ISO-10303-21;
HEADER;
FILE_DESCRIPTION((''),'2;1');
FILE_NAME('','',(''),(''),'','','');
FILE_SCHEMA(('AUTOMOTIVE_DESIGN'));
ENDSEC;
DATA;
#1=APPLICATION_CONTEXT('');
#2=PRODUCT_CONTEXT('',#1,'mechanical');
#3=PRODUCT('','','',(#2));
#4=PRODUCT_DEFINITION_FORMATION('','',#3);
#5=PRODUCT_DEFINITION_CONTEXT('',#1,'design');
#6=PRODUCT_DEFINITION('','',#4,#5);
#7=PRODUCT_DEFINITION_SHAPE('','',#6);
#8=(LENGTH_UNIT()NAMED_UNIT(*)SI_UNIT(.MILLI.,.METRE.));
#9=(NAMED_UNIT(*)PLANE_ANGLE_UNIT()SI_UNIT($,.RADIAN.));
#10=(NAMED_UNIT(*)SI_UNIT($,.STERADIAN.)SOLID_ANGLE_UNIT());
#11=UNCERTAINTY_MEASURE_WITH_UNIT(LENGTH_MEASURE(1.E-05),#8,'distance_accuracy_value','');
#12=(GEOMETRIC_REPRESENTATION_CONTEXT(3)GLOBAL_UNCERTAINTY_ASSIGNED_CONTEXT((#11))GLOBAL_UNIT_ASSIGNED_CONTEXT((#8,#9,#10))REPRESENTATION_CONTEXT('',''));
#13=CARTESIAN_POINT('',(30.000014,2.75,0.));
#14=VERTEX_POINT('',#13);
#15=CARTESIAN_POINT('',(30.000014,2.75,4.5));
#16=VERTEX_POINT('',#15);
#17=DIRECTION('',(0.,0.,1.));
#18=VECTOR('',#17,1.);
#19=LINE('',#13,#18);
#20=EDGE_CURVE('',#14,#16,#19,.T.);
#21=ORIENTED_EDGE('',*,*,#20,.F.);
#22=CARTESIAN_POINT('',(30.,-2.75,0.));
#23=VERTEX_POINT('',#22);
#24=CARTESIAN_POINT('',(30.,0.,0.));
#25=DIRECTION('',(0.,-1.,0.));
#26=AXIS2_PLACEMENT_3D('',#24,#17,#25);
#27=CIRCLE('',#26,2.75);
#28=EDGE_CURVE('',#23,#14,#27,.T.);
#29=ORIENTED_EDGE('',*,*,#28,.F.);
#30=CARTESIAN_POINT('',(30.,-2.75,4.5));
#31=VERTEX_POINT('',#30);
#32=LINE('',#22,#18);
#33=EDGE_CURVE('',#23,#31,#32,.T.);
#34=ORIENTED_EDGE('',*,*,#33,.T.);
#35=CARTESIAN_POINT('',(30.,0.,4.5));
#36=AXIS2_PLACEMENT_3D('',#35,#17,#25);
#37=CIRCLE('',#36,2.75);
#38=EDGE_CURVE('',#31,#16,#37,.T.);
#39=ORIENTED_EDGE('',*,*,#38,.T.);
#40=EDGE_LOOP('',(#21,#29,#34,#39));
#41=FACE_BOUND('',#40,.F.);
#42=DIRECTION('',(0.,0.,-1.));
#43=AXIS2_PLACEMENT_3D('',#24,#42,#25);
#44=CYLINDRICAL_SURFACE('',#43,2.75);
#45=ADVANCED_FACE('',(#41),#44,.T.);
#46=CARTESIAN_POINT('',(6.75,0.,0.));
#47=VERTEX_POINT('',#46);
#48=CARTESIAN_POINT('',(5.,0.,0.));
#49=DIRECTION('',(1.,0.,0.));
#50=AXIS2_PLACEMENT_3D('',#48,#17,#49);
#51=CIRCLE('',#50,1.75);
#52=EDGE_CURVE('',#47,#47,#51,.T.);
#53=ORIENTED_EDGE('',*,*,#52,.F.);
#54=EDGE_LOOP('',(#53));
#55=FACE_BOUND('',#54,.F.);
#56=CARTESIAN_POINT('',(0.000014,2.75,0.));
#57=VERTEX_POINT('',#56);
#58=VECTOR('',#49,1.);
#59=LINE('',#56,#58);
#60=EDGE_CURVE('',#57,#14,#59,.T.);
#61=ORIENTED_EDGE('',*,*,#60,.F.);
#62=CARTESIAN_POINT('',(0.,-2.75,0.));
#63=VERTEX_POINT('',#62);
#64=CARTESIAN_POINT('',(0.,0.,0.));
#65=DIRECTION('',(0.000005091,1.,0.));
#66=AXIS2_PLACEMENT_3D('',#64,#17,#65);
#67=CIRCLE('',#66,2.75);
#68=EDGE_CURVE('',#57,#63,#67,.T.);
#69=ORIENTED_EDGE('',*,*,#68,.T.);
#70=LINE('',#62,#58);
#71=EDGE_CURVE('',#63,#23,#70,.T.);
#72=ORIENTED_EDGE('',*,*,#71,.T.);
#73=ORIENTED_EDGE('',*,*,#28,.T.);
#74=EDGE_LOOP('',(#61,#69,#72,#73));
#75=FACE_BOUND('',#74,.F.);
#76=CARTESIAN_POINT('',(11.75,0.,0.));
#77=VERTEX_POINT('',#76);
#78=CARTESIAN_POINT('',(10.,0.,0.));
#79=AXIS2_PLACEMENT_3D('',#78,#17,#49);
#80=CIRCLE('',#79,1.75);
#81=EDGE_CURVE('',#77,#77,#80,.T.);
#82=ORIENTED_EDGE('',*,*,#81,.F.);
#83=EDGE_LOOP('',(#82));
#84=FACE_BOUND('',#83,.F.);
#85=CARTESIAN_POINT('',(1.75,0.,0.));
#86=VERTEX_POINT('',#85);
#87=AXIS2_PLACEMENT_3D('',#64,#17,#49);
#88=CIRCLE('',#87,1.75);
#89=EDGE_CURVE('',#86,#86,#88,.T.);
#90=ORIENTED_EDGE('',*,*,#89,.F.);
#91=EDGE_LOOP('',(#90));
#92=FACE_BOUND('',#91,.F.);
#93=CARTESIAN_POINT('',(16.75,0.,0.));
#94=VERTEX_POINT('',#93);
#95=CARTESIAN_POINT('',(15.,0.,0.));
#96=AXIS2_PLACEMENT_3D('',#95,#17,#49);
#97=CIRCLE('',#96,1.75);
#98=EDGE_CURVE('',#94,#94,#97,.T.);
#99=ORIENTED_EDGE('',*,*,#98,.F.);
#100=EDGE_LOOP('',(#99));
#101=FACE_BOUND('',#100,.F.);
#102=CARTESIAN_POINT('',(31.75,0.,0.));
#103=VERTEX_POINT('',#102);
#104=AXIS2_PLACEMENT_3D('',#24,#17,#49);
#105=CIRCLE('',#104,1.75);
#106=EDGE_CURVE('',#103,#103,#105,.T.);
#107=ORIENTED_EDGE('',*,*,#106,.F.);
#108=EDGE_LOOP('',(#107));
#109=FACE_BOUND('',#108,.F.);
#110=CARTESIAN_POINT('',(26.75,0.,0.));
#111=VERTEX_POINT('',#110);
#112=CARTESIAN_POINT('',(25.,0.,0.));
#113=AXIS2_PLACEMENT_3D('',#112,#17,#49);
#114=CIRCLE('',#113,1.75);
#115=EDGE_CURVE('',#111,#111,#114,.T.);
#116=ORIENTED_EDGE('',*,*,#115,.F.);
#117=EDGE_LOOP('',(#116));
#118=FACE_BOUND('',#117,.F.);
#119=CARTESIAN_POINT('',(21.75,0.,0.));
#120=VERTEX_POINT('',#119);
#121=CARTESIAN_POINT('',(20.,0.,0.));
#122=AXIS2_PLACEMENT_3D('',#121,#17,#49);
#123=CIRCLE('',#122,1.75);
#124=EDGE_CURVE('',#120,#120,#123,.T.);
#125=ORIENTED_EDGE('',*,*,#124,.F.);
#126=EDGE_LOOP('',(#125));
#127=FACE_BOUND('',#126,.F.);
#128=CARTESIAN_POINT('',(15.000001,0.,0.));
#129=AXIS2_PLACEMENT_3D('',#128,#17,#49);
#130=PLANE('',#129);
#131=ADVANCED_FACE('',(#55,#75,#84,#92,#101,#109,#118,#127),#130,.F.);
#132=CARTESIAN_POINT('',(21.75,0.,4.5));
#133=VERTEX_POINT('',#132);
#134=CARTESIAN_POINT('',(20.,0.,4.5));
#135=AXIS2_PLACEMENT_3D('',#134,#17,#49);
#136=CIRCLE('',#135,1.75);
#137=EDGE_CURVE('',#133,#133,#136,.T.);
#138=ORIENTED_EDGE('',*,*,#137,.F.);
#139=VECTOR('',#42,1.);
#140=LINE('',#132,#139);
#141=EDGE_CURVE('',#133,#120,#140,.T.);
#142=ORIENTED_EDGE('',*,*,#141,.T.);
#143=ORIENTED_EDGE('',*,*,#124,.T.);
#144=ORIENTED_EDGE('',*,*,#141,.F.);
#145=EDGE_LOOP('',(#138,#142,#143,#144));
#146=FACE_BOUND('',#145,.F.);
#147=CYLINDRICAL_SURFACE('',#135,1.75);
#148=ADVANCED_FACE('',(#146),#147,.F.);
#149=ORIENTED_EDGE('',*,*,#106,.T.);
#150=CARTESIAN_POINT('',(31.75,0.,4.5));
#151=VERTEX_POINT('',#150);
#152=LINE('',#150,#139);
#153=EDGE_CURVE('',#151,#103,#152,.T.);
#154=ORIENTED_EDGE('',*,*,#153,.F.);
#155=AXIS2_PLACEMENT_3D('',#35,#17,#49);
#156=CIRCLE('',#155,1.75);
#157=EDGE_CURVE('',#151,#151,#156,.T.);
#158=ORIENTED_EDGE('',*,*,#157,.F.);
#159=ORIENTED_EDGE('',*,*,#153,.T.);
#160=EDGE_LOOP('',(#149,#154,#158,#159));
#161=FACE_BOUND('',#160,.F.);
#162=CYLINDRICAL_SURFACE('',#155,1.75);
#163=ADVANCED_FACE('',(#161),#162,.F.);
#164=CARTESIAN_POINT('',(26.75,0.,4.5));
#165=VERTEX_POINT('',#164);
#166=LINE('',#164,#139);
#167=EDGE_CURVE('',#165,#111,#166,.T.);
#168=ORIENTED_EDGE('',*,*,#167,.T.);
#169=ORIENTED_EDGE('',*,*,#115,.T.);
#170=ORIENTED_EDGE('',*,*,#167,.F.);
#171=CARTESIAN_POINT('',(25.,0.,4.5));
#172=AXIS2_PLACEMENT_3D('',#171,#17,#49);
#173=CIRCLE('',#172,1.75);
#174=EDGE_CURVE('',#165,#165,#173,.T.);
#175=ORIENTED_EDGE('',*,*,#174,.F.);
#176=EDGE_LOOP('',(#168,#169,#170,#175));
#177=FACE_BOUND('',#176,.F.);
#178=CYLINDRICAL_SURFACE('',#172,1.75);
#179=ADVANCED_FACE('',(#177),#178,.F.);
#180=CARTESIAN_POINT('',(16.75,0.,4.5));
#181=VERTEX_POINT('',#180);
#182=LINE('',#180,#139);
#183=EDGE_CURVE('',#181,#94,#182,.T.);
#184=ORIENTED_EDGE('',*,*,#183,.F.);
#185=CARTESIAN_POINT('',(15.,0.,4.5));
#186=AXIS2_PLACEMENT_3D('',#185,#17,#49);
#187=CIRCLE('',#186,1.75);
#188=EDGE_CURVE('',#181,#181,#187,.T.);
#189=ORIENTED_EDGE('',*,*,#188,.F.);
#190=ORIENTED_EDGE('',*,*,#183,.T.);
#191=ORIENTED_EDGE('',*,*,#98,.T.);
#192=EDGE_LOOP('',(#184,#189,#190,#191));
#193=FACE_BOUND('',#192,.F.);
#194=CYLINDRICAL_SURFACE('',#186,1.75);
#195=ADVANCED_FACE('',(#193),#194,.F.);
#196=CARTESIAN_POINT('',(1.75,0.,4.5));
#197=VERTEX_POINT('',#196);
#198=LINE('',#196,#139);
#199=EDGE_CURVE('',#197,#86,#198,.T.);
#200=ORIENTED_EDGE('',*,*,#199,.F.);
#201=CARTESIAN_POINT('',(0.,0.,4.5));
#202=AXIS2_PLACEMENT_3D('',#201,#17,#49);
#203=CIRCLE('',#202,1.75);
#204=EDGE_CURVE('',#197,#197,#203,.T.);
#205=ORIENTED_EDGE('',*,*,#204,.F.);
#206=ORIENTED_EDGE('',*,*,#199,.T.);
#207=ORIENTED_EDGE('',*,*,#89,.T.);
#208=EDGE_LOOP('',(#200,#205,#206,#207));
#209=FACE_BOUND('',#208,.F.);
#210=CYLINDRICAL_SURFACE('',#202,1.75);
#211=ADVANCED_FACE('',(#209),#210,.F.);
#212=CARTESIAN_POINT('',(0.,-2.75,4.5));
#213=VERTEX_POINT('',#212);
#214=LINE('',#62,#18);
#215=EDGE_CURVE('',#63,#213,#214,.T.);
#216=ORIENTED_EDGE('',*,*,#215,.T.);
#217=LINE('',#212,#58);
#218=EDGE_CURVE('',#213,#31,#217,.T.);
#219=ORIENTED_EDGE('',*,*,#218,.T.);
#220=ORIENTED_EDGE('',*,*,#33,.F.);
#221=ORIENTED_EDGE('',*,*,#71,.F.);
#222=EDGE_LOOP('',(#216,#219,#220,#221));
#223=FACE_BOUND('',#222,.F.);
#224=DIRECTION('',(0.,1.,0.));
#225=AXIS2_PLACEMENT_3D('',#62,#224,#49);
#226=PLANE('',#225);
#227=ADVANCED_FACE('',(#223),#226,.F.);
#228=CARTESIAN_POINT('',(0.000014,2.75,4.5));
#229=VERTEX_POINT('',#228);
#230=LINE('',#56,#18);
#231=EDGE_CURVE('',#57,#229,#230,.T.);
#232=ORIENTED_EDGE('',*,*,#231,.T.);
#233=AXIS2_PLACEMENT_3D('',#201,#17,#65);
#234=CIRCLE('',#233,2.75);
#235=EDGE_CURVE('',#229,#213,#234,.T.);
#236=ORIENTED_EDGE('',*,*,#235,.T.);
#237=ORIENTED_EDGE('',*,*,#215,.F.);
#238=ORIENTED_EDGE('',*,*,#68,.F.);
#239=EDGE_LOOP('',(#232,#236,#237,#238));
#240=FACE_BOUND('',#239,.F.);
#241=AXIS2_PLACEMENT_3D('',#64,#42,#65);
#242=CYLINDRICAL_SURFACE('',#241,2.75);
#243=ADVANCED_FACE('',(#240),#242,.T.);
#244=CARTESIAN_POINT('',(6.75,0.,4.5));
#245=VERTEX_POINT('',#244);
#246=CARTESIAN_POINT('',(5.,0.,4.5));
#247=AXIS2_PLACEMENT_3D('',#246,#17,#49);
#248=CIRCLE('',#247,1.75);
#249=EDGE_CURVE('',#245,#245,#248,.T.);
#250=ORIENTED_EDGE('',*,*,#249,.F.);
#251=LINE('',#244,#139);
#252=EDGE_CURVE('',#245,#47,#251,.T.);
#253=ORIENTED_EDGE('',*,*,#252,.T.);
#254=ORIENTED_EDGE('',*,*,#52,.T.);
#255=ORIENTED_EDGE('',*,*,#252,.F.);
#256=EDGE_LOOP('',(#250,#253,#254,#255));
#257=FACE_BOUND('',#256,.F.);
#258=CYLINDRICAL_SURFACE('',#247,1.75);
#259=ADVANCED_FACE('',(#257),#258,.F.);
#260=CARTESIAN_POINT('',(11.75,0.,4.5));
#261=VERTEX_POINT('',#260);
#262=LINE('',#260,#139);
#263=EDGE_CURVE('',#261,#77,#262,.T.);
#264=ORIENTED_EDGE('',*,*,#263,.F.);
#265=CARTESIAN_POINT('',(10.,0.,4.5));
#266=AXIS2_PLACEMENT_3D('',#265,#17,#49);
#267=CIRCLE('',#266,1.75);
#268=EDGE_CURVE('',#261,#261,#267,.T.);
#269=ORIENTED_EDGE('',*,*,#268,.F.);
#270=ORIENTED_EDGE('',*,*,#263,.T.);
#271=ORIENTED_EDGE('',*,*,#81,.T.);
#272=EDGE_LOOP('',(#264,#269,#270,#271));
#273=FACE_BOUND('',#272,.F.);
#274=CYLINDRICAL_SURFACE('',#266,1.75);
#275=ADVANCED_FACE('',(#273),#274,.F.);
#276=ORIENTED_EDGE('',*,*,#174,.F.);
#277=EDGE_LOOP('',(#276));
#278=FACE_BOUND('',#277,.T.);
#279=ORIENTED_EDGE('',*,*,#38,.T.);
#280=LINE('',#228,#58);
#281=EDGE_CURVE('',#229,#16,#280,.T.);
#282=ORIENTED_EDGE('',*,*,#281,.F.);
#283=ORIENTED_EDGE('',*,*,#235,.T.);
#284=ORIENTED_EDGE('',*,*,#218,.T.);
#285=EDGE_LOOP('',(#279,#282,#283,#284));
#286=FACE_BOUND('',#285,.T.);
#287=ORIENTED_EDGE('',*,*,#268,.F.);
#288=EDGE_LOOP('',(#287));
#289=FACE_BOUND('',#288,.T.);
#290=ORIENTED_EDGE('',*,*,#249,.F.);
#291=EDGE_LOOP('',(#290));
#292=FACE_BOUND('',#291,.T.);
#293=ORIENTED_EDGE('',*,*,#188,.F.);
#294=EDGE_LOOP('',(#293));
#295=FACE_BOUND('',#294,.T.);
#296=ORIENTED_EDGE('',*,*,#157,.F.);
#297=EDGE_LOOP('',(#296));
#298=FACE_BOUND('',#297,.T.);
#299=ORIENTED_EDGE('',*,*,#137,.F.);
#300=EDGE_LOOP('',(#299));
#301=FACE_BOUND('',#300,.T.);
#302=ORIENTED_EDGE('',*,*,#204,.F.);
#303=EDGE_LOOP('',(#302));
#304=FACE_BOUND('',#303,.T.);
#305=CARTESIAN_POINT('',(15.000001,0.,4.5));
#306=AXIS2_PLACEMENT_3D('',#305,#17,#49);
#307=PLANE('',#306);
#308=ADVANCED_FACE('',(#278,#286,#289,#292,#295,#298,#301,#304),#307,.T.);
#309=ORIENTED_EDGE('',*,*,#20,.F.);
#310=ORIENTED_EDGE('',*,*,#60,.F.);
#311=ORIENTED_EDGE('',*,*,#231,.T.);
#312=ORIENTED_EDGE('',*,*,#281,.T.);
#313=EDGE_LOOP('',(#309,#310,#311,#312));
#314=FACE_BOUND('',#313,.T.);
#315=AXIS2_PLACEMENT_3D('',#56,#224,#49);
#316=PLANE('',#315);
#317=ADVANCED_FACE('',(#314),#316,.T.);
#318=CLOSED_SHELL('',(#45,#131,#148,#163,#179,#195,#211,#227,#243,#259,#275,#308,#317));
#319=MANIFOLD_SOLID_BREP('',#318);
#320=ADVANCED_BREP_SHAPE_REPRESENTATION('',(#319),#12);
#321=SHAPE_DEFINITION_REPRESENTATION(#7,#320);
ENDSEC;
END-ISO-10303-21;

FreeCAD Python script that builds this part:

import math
import FreeCAD as App
import Part
import Sketcher
from FreeCAD import Vector

doc = App.newDocument("Part")
body = doc.addObject("PartDesign::Body", "Body")

# Sketch on XY plane
sketch1 = doc.addObject("Sketcher::SketchObject", "Sketch")
body.addObject(sketch1)
sketch1.AttachmentSupport = (doc.XY_Plane, [""])
sketch1.MapMode = "FlatFace"
sketch1.addGeometry([
    Part.ArcOfCircle(Part.Circle(Vector(0, 0, 0), Vector(0, 0, 1), 2.8), math.radians(90), math.radians(270)),
    Part.LineSegment(Vector(0, -2.8, 0), Vector(30, -2.8, 0)),
    Part.ArcOfCircle(Part.Circle(Vector(30, 0, 0), Vector(0, 0, 1), 2.8), math.radians(-90), math.radians(90)),
    Part.LineSegment(Vector(30, 2.8, 0), Vector(0, 2.8, 0)),
], False)
sketch1.addConstraint([
    Sketcher.Constraint("Tangent", 0, 2, 1, 1),
    Sketcher.Constraint("Tangent", 1, 2, 2, 1),
    Sketcher.Constraint("Coincident", 2, 2, 3, 1),
    Sketcher.Constraint("Coincident", 3, 2, 0, 1),
    Sketcher.Constraint("Horizontal", 1),
    Sketcher.Constraint("Horizontal", 3),
    Sketcher.Constraint("Coincident", 0, 3, -1, 1),
    Sketcher.Constraint("Equal", 1, 3),
    Sketcher.Constraint("DistanceX", 1, 1, 1, 2, 30.0),
    Sketcher.Constraint("Radius", 0, 2.75),
    Sketcher.Constraint("DistanceX", -1, 1, 2, 2, 30.000014),
])
pad1 = doc.addObject("PartDesign::Pad", "Pad")
body.addObject(pad1)
pad1.Profile = sketch1
pad1.Length = 4.5

# Sketch on XY plane
sketch2 = doc.addObject("Sketcher::SketchObject", "Sketch001")
body.addObject(sketch2)
sketch2.AttachmentSupport = (doc.XY_Plane, [""])
sketch2.MapMode = "FlatFace"
sketch2.AttachmentOffset = App.Placement(Vector(0, 0, 4.5), App.Rotation())
sketch2.addGeometry(Part.Circle(Vector(0, 0, 0), Vector(0, 0, 1), 1.8), False)
sketch2.addConstraint([
    Sketcher.Constraint("Coincident", 0, 3, -1, 1),
    Sketcher.Constraint("Diameter", 0, 3.5),
])
pocket1 = doc.addObject("PartDesign::Pocket", "Pocket")
body.addObject(pocket1)
pocket1.Profile = sketch2
pocket1.Type = "ThroughAll"
doc.recompute()

linearpattern = doc.addObject("PartDesign::LinearPattern", "LinearPattern")
body.addObject(linearpattern)
linearpattern.Originals = [pocket1]
linearpattern.Direction = (doc.X_Axis, [""])
linearpattern.Mode = "offset"
linearpattern.Offset = 5
linearpattern.Occurrences = 7
body.Tip = linearpattern

doc.recompute()
